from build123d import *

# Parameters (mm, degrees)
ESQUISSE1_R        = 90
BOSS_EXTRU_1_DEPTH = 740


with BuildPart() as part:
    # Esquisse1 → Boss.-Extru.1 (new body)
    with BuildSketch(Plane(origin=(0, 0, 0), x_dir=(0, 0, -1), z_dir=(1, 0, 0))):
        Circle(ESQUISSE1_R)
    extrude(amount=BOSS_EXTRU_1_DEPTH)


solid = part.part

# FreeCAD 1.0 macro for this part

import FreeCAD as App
import Part
import Sketcher

doc = App.newDocument("Part")
params = doc.addObject("Spreadsheet::Sheet", "Params")
for row, (alias, value) in enumerate([
    ("sketch1_diameter", "180 mm"),
    ("pad1_length", "740 mm"),
], start=1):
    params.set(f"A{row}", alias)
    params.set(f"B{row}", "=" + value)
    params.setAlias(f"B{row}", alias)

body = doc.addObject("PartDesign::Body", "Body")

# Sketch on YZ plane
sketch1 = body.newObject("Sketcher::SketchObject", "Sketch")
sketch1.AttachmentSupport = (doc.getObject("YZ_Plane"), [""])
sketch1.MapMode = "FlatFace"
sketch1.addGeometry(Part.Circle(App.Vector(0, 0, 0), App.Vector(0, 0, 1), 90), False)
sketch1.addConstraint(Sketcher.Constraint("Coincident", 0, 3, -1, 1))
sketch1.addConstraint(Sketcher.Constraint("Diameter", 0, 180.0))
sketch1.setExpression("Constraints[1]", "Params.sketch1_diameter")
pad1 = body.newObject("PartDesign::Pad", "Pad")
pad1.Profile = sketch1
pad1.setExpression("Length", "Params.pad1_length")

doc.recompute()
